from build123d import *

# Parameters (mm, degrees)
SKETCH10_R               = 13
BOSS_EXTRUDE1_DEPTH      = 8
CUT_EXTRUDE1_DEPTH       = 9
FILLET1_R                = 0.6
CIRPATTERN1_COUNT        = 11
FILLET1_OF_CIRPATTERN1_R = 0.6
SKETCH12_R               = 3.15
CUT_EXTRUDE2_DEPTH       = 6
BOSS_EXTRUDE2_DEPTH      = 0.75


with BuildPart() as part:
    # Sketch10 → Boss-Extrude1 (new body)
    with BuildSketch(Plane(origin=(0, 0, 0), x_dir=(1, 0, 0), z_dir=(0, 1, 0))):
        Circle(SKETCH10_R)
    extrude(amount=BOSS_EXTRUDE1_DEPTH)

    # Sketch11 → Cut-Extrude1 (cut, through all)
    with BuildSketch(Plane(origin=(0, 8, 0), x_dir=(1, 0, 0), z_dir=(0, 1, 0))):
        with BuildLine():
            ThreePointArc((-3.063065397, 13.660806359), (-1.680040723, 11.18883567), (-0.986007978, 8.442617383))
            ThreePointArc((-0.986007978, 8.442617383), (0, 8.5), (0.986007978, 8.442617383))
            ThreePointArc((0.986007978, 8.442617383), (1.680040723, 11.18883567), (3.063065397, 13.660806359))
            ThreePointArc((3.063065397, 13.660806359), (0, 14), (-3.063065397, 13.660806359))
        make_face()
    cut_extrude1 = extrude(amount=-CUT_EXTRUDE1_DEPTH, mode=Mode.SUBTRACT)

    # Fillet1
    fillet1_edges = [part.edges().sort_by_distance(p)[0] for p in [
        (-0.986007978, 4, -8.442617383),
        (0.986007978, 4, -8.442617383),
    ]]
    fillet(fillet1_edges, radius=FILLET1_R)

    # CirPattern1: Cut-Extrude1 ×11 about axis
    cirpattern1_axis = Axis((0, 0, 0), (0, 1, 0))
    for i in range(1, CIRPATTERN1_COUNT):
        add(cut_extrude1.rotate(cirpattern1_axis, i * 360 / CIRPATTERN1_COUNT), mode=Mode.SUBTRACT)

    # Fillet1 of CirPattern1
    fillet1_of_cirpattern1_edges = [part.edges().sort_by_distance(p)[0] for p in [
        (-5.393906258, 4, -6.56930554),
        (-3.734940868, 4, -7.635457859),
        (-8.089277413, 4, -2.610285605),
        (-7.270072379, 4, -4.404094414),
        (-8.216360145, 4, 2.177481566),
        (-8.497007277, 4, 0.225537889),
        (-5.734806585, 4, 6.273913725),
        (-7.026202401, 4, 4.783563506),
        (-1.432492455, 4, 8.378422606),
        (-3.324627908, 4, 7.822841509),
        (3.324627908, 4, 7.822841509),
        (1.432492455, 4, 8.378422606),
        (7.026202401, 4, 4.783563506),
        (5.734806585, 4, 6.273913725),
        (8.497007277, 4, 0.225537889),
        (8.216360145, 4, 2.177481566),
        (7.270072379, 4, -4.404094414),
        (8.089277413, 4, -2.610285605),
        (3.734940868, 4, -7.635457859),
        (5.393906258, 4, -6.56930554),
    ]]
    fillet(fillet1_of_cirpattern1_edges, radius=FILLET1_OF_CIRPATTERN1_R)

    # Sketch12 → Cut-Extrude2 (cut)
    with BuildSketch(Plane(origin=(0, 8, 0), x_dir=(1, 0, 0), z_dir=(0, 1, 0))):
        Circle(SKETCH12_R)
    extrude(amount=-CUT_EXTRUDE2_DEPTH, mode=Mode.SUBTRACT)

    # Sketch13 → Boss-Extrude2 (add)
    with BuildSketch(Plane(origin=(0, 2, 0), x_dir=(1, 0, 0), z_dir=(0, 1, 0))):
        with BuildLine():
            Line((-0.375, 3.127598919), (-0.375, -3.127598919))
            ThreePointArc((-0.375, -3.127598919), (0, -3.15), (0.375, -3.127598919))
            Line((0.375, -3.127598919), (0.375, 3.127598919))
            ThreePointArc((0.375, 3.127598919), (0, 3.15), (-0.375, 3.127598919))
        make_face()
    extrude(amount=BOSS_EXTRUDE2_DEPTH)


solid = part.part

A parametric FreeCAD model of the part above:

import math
import FreeCAD as App
import Part
import Sketcher
from FreeCAD import Vector


def edges_at(feature, points):
    """Names of the edges that pass closest to the given points."""
    edges = feature.Shape.Edges
    near = lambda p: min(range(len(edges)), key=lambda i: edges[i].distToShape(Part.Vertex(*p))[0])
    return sorted({f"Edge{near(p) + 1}" for p in points})

doc = App.newDocument("Part")
body = doc.addObject("PartDesign::Body", "Body")

sketch1 = body.newObject("Sketcher::SketchObject", "Sketch")
sketch1.AttachmentSupport = (doc.getObject("XZ_Plane"), [""])
sketch1.MapMode = "FlatFace"
sketch1.addGeometry(Part.Circle(Vector(0, 0, 0), Vector(0, 0, 1), 13), False)
sketch1.addConstraint(Sketcher.Constraint("Coincident", 0, 3, -1, 1))
sketch1.addConstraint(Sketcher.Constraint("Diameter", 0, 26.0))
pad1 = body.newObject("PartDesign::Pad", "Pad")
pad1.Profile = sketch1
pad1.Length = 8
pad1.Reversed = True

sketch2 = body.newObject("Sketcher::SketchObject", "Sketch001")
sketch2.AttachmentSupport = (doc.getObject("XZ_Plane"), [""])
sketch2.MapMode = "FlatFace"
sketch2.AttachmentOffset = App.Placement(Vector(0, 0, -8), App.Rotation())
sketch2.addGeometry(Part.ArcOfCircle(Part.Circle(Vector(-11.732483, -7.187543, 0), Vector(0, 0, 1), 10.819516), math.radians(-36.747887), math.radians(-6.661361)), False)
sketch2.addGeometry(Part.ArcOfCircle(Part.Circle(Vector(0, 0, 0), Vector(0, 0, 1), 8.5), math.radians(-96.661361), math.radians(-83.338639)), False)
sketch2.addGeometry(Part.ArcOfCircle(Part.Circle(Vector(11.732483, -7.187543, 0), Vector(0, 0, 1), 10.819516), math.radians(-173.338639), math.radians(-143.252113)), False)
sketch2.addGeometry(Part.ArcOfCircle(Part.Circle(Vector(0, 0, 0), Vector(0, 0, 1), 14), math.radians(-102.637996), math.radians(-77.362004)), False)
sketch2.addConstraint(Sketcher.Constraint("Coincident", 0, 2, 1, 1))
sketch2.addConstraint(Sketcher.Constraint("Coincident", 1, 2, 2, 1))
sketch2.addConstraint(Sketcher.Constraint("Coincident", 2, 2, 3, 2))
sketch2.addConstraint(Sketcher.Constraint("Coincident", 3, 1, 0, 1))
sketch2.addConstraint(Sketcher.Constraint("Coincident", 1, 3, -1, 1))
sketch2.addConstraint(Sketcher.Constraint("Coincident", 3, 3, -1, 1))
sketch2.addConstraint(Sketcher.Constraint("Equal", 0, 2))
sketch2.addConstraint(Sketcher.Constraint("Symmetric", 0, 3, 2, 3, -2))
sketch2.addConstraint(Sketcher.Constraint("Radius", 3, 14.0))
sketch2.addConstraint(Sketcher.Constraint("Radius", 1, 8.5))
sketch2.addConstraint(Sketcher.Constraint("Radius", 0, 10.819516))
sketch2.addConstraint(Sketcher.Constraint("DistanceX", 0, 2, 2, 3, 12.718491))
sketch2.addConstraint(Sketcher.Constraint("DistanceY", 2, 2, 1, 2, 5.218189))
pocket1 = body.newObject("PartDesign::Pocket", "Pocket")
pocket1.Profile = sketch2
pocket1.Type = "ThroughAll"
pocket1.Reversed = True
doc.recompute()

fillet = body.newObject("PartDesign::Fillet", "Fillet")
fillet.Base = (pocket1, edges_at(pocket1, [(-0.986, 4, -8.443), (0.986, 4, -8.443)]))
fillet.Radius = 0.6
doc.recompute()

polarpattern = body.newObject("PartDesign::PolarPattern", "PolarPattern")
polarpattern.Originals = [pocket1]
polarpattern.Axis = (doc.getObject("Y_Axis"), [""])
polarpattern.Angle = 360
polarpattern.Occurrences = 11
body.Tip = polarpattern
doc.recompute()

fillet2 = body.newObject("PartDesign::Fillet", "Fillet001")
fillet2.Base = (polarpattern, edges_at(polarpattern, [
    (-5.394, 4, -6.569),
    (-3.735, 4, -7.635),
    (-8.089, 4, -2.61),
    (-7.27, 4, -4.404),
    (-8.216, 4, 2.177),
    (-8.497, 4, 0.226),
    (-5.735, 4, 6.274),
    (-7.026, 4, 4.784),
    (-1.432, 4, 8.378),
    (-3.325, 4, 7.823),
    (3.325, 4, 7.823),
    (1.432, 4, 8.378),
    (7.026, 4, 4.784),
    (5.735, 4, 6.274),
    (8.497, 4, 0.226),
    (8.216, 4, 2.177),
    (7.27, 4, -4.404),
    (8.089, 4, -2.61),
    (3.735, 4, -7.635),
    (5.394, 4, -6.569),
]))
fillet2.Radius = 0.6

sketch3 = body.newObject("Sketcher::SketchObject", "Sketch002")
sketch3.AttachmentSupport = (doc.getObject("XZ_Plane"), [""])
sketch3.MapMode = "FlatFace"
sketch3.AttachmentOffset = App.Placement(Vector(0, 0, -8), App.Rotation())
sketch3.addGeometry(Part.Circle(Vector(0, 0, 0), Vector(0, 0, 1), 3.15), False)
sketch3.addConstraint(Sketcher.Constraint("Coincident", 0, 3, -1, 1))
sketch3.addConstraint(Sketcher.Constraint("Diameter", 0, 6.3))
pocket2 = body.newObject("PartDesign::Pocket", "Pocket001")
pocket2.Profile = sketch3
pocket2.Length = 6
pocket2.Reversed = True

sketch4 = body.newObject("Sketcher::SketchObject", "Sketch003")
sketch4.AttachmentSupport = (doc.getObject("XZ_Plane"), [""])
sketch4.MapMode = "FlatFace"
sketch4.AttachmentOffset = App.Placement(Vector(0, 0, -2), App.Rotation())
sketch4.addGeometry(Part.LineSegment(Vector(-0.375, -3.127599, 0), Vector(-0.375, 3.127599, 0)), False)
sketch4.addGeometry(Part.ArcOfCircle(Part.Circle(Vector(0, 0, 0), Vector(0, 0, 1), 3.15), math.radians(83.162859), math.radians(96.837141)), False)
sketch4.addGeometry(Part.LineSegment(Vector(0.375, 3.127599, 0), Vector(0.375, -3.127599, 0)), False)
sketch4.addGeometry(Part.ArcOfCircle(Part.Circle(Vector(0, 0, 0), Vector(0, 0, 1), 3.15), math.radians(-96.837141), math.radians(-83.162859)), False)
sketch4.addConstraint(Sketcher.Constraint("Coincident", 0, 2, 1, 2))
sketch4.addConstraint(Sketcher.Constraint("Coincident", 1, 1, 2, 1))
sketch4.addConstraint(Sketcher.Constraint("Coincident", 2, 2, 3, 2))
sketch4.addConstraint(Sketcher.Constraint("Coincident", 3, 1, 0, 1))
sketch4.addConstraint(Sketcher.Constraint("Vertical", 0))
sketch4.addConstraint(Sketcher.Constraint("Vertical", 2))
sketch4.addConstraint(Sketcher.Constraint("Coincident", 1, 3, -1, 1))
sketch4.addConstraint(Sketcher.Constraint("Coincident", 3, 3, -1, 1))
sketch4.addConstraint(Sketcher.Constraint("Equal", 1, 3))
sketch4.addConstraint(Sketcher.Constraint("Horizontal", 0, 2, 1, 1))
sketch4.addConstraint(Sketcher.Constraint("Radius", 1, 3.15))
sketch4.addConstraint(Sketcher.Constraint("DistanceX", 0, 2, 1, 1, 0.75))
pad2 = body.newObject("PartDesign::Pad", "Pad001")
pad2.Profile = sketch4
pad2.Length = 0.75
pad2.Reversed = True

doc.recompute()
